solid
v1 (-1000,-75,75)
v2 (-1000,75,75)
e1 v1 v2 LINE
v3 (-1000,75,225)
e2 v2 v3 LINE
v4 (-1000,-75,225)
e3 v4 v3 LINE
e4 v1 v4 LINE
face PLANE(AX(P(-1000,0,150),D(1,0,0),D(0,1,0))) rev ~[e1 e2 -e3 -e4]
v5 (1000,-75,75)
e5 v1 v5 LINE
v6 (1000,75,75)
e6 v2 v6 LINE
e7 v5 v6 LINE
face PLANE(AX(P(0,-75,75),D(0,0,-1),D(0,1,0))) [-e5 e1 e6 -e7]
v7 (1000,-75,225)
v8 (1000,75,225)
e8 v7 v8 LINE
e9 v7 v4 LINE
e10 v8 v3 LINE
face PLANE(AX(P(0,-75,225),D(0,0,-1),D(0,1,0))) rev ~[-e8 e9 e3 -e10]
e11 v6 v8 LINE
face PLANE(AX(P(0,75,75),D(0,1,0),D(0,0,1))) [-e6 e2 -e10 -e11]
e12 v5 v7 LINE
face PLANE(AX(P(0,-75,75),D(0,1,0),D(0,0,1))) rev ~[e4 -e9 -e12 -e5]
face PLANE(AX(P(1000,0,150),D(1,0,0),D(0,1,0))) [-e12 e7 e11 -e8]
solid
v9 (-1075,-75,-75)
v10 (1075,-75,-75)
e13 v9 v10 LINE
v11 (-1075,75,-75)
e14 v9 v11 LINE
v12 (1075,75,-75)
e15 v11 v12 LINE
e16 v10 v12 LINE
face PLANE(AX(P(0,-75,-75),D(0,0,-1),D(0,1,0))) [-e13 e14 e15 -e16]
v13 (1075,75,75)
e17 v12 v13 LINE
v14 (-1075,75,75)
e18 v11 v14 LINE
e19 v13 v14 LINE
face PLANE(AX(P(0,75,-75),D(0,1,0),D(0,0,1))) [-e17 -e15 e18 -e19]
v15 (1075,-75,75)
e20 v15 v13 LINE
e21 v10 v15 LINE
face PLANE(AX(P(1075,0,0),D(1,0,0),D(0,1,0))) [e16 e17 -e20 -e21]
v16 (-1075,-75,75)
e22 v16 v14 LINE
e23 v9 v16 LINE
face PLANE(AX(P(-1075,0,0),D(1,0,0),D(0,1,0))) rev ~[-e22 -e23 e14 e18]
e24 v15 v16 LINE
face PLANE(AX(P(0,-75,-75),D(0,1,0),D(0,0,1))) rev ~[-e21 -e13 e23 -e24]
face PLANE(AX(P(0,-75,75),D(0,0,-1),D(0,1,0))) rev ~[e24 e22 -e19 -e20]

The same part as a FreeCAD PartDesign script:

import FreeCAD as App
import Part
import Sketcher

V = App.Vector
Q = App.Units.Quantity

doc = App.newDocument("Part")
body = doc.addObject("PartDesign::Body", "Body")

# Sketch on YZ plane
sketch1 = body.newObject("Sketcher::SketchObject", "Sketch")
sketch1.AttachmentSupport = (doc.getObject("YZ_Plane"), [""])
sketch1.MapMode = "FlatFace"
sketch1.addGeometry([
    Part.LineSegment(V(-75, 75, 0), V(-75, -75, 0)),
    Part.LineSegment(V(-75, -75, 0), V(75, -75, 0)),
    Part.LineSegment(V(75, -75, 0), V(75, 75, 0)),
    Part.LineSegment(V(75, 75, 0), V(-75, 75, 0)),
], False)
sketch1.addConstraint([
    Sketcher.Constraint("Coincident", 0, 2, 1, 1),
    Sketcher.Constraint("Coincident", 1, 2, 2, 1),
    Sketcher.Constraint("Coincident", 2, 2, 3, 1),
    Sketcher.Constraint("Coincident", 3, 2, 0, 1),
    Sketcher.Constraint("Vertical", 0),
    Sketcher.Constraint("Horizontal", 1),
    Sketcher.Constraint("Vertical", 2),
    Sketcher.Constraint("Horizontal", 3),
    Sketcher.Constraint("Symmetric", 0, 2, 2, 2, -1, 1),
    Sketcher.Constraint("Equal", 3, 0),
    Sketcher.Constraint("DistanceX", 1, 1, 1, 2, Q("150 mm")),
])
pad1 = body.newObject("PartDesign::Pad", "Pad")
pad1.Profile = sketch1
pad1.Length = 2150
pad1.Midplane = True
body2 = doc.addObject("PartDesign::Body", "Body001")

# Sketch on YZ plane
sketch2 = body2.newObject("Sketcher::SketchObject", "Sketch001")
sketch2.AttachmentSupport = (doc.getObject("YZ_Plane001"), [""])
sketch2.MapMode = "FlatFace"
sketch2.addGeometry([
    Part.LineSegment(V(-75, 225, 0), V(-75, 75, 0)),
    Part.LineSegment(V(-75, 75, 0), V(75, 75, 0)),
    Part.LineSegment(V(75, 75, 0), V(75, 225, 0)),
    Part.LineSegment(V(75, 225, 0), V(-75, 225, 0)),
], False)
sketch2.addConstraint([
    Sketcher.Constraint("Coincident", 0, 2, 1, 1),
    Sketcher.Constraint("Coincident", 1, 2, 2, 1),
    Sketcher.Constraint("Coincident", 2, 2, 3, 1),
    Sketcher.Constraint("Coincident", 3, 2, 0, 1),
    Sketcher.Constraint("Vertical", 0),
    Sketcher.Constraint("Horizontal", 1),
    Sketcher.Constraint("Vertical", 2),
    Sketcher.Constraint("Horizontal", 3),
    Sketcher.Constraint("Equal", 3, 0),
    Sketcher.Constraint("DistanceX", 1, 1, 1, 2, Q("150 mm")),
    Sketcher.Constraint("DistanceX", 0, 2, -1, 1, Q("75 mm")),
    Sketcher.Constraint("DistanceY", -1, 1, 0, 2, Q("75 mm")),
])
pad2 = body2.newObject("PartDesign::Pad", "Pad001")
pad2.Profile = sketch2
pad2.Length = 2000
pad2.Midplane = True

doc.recompute()
